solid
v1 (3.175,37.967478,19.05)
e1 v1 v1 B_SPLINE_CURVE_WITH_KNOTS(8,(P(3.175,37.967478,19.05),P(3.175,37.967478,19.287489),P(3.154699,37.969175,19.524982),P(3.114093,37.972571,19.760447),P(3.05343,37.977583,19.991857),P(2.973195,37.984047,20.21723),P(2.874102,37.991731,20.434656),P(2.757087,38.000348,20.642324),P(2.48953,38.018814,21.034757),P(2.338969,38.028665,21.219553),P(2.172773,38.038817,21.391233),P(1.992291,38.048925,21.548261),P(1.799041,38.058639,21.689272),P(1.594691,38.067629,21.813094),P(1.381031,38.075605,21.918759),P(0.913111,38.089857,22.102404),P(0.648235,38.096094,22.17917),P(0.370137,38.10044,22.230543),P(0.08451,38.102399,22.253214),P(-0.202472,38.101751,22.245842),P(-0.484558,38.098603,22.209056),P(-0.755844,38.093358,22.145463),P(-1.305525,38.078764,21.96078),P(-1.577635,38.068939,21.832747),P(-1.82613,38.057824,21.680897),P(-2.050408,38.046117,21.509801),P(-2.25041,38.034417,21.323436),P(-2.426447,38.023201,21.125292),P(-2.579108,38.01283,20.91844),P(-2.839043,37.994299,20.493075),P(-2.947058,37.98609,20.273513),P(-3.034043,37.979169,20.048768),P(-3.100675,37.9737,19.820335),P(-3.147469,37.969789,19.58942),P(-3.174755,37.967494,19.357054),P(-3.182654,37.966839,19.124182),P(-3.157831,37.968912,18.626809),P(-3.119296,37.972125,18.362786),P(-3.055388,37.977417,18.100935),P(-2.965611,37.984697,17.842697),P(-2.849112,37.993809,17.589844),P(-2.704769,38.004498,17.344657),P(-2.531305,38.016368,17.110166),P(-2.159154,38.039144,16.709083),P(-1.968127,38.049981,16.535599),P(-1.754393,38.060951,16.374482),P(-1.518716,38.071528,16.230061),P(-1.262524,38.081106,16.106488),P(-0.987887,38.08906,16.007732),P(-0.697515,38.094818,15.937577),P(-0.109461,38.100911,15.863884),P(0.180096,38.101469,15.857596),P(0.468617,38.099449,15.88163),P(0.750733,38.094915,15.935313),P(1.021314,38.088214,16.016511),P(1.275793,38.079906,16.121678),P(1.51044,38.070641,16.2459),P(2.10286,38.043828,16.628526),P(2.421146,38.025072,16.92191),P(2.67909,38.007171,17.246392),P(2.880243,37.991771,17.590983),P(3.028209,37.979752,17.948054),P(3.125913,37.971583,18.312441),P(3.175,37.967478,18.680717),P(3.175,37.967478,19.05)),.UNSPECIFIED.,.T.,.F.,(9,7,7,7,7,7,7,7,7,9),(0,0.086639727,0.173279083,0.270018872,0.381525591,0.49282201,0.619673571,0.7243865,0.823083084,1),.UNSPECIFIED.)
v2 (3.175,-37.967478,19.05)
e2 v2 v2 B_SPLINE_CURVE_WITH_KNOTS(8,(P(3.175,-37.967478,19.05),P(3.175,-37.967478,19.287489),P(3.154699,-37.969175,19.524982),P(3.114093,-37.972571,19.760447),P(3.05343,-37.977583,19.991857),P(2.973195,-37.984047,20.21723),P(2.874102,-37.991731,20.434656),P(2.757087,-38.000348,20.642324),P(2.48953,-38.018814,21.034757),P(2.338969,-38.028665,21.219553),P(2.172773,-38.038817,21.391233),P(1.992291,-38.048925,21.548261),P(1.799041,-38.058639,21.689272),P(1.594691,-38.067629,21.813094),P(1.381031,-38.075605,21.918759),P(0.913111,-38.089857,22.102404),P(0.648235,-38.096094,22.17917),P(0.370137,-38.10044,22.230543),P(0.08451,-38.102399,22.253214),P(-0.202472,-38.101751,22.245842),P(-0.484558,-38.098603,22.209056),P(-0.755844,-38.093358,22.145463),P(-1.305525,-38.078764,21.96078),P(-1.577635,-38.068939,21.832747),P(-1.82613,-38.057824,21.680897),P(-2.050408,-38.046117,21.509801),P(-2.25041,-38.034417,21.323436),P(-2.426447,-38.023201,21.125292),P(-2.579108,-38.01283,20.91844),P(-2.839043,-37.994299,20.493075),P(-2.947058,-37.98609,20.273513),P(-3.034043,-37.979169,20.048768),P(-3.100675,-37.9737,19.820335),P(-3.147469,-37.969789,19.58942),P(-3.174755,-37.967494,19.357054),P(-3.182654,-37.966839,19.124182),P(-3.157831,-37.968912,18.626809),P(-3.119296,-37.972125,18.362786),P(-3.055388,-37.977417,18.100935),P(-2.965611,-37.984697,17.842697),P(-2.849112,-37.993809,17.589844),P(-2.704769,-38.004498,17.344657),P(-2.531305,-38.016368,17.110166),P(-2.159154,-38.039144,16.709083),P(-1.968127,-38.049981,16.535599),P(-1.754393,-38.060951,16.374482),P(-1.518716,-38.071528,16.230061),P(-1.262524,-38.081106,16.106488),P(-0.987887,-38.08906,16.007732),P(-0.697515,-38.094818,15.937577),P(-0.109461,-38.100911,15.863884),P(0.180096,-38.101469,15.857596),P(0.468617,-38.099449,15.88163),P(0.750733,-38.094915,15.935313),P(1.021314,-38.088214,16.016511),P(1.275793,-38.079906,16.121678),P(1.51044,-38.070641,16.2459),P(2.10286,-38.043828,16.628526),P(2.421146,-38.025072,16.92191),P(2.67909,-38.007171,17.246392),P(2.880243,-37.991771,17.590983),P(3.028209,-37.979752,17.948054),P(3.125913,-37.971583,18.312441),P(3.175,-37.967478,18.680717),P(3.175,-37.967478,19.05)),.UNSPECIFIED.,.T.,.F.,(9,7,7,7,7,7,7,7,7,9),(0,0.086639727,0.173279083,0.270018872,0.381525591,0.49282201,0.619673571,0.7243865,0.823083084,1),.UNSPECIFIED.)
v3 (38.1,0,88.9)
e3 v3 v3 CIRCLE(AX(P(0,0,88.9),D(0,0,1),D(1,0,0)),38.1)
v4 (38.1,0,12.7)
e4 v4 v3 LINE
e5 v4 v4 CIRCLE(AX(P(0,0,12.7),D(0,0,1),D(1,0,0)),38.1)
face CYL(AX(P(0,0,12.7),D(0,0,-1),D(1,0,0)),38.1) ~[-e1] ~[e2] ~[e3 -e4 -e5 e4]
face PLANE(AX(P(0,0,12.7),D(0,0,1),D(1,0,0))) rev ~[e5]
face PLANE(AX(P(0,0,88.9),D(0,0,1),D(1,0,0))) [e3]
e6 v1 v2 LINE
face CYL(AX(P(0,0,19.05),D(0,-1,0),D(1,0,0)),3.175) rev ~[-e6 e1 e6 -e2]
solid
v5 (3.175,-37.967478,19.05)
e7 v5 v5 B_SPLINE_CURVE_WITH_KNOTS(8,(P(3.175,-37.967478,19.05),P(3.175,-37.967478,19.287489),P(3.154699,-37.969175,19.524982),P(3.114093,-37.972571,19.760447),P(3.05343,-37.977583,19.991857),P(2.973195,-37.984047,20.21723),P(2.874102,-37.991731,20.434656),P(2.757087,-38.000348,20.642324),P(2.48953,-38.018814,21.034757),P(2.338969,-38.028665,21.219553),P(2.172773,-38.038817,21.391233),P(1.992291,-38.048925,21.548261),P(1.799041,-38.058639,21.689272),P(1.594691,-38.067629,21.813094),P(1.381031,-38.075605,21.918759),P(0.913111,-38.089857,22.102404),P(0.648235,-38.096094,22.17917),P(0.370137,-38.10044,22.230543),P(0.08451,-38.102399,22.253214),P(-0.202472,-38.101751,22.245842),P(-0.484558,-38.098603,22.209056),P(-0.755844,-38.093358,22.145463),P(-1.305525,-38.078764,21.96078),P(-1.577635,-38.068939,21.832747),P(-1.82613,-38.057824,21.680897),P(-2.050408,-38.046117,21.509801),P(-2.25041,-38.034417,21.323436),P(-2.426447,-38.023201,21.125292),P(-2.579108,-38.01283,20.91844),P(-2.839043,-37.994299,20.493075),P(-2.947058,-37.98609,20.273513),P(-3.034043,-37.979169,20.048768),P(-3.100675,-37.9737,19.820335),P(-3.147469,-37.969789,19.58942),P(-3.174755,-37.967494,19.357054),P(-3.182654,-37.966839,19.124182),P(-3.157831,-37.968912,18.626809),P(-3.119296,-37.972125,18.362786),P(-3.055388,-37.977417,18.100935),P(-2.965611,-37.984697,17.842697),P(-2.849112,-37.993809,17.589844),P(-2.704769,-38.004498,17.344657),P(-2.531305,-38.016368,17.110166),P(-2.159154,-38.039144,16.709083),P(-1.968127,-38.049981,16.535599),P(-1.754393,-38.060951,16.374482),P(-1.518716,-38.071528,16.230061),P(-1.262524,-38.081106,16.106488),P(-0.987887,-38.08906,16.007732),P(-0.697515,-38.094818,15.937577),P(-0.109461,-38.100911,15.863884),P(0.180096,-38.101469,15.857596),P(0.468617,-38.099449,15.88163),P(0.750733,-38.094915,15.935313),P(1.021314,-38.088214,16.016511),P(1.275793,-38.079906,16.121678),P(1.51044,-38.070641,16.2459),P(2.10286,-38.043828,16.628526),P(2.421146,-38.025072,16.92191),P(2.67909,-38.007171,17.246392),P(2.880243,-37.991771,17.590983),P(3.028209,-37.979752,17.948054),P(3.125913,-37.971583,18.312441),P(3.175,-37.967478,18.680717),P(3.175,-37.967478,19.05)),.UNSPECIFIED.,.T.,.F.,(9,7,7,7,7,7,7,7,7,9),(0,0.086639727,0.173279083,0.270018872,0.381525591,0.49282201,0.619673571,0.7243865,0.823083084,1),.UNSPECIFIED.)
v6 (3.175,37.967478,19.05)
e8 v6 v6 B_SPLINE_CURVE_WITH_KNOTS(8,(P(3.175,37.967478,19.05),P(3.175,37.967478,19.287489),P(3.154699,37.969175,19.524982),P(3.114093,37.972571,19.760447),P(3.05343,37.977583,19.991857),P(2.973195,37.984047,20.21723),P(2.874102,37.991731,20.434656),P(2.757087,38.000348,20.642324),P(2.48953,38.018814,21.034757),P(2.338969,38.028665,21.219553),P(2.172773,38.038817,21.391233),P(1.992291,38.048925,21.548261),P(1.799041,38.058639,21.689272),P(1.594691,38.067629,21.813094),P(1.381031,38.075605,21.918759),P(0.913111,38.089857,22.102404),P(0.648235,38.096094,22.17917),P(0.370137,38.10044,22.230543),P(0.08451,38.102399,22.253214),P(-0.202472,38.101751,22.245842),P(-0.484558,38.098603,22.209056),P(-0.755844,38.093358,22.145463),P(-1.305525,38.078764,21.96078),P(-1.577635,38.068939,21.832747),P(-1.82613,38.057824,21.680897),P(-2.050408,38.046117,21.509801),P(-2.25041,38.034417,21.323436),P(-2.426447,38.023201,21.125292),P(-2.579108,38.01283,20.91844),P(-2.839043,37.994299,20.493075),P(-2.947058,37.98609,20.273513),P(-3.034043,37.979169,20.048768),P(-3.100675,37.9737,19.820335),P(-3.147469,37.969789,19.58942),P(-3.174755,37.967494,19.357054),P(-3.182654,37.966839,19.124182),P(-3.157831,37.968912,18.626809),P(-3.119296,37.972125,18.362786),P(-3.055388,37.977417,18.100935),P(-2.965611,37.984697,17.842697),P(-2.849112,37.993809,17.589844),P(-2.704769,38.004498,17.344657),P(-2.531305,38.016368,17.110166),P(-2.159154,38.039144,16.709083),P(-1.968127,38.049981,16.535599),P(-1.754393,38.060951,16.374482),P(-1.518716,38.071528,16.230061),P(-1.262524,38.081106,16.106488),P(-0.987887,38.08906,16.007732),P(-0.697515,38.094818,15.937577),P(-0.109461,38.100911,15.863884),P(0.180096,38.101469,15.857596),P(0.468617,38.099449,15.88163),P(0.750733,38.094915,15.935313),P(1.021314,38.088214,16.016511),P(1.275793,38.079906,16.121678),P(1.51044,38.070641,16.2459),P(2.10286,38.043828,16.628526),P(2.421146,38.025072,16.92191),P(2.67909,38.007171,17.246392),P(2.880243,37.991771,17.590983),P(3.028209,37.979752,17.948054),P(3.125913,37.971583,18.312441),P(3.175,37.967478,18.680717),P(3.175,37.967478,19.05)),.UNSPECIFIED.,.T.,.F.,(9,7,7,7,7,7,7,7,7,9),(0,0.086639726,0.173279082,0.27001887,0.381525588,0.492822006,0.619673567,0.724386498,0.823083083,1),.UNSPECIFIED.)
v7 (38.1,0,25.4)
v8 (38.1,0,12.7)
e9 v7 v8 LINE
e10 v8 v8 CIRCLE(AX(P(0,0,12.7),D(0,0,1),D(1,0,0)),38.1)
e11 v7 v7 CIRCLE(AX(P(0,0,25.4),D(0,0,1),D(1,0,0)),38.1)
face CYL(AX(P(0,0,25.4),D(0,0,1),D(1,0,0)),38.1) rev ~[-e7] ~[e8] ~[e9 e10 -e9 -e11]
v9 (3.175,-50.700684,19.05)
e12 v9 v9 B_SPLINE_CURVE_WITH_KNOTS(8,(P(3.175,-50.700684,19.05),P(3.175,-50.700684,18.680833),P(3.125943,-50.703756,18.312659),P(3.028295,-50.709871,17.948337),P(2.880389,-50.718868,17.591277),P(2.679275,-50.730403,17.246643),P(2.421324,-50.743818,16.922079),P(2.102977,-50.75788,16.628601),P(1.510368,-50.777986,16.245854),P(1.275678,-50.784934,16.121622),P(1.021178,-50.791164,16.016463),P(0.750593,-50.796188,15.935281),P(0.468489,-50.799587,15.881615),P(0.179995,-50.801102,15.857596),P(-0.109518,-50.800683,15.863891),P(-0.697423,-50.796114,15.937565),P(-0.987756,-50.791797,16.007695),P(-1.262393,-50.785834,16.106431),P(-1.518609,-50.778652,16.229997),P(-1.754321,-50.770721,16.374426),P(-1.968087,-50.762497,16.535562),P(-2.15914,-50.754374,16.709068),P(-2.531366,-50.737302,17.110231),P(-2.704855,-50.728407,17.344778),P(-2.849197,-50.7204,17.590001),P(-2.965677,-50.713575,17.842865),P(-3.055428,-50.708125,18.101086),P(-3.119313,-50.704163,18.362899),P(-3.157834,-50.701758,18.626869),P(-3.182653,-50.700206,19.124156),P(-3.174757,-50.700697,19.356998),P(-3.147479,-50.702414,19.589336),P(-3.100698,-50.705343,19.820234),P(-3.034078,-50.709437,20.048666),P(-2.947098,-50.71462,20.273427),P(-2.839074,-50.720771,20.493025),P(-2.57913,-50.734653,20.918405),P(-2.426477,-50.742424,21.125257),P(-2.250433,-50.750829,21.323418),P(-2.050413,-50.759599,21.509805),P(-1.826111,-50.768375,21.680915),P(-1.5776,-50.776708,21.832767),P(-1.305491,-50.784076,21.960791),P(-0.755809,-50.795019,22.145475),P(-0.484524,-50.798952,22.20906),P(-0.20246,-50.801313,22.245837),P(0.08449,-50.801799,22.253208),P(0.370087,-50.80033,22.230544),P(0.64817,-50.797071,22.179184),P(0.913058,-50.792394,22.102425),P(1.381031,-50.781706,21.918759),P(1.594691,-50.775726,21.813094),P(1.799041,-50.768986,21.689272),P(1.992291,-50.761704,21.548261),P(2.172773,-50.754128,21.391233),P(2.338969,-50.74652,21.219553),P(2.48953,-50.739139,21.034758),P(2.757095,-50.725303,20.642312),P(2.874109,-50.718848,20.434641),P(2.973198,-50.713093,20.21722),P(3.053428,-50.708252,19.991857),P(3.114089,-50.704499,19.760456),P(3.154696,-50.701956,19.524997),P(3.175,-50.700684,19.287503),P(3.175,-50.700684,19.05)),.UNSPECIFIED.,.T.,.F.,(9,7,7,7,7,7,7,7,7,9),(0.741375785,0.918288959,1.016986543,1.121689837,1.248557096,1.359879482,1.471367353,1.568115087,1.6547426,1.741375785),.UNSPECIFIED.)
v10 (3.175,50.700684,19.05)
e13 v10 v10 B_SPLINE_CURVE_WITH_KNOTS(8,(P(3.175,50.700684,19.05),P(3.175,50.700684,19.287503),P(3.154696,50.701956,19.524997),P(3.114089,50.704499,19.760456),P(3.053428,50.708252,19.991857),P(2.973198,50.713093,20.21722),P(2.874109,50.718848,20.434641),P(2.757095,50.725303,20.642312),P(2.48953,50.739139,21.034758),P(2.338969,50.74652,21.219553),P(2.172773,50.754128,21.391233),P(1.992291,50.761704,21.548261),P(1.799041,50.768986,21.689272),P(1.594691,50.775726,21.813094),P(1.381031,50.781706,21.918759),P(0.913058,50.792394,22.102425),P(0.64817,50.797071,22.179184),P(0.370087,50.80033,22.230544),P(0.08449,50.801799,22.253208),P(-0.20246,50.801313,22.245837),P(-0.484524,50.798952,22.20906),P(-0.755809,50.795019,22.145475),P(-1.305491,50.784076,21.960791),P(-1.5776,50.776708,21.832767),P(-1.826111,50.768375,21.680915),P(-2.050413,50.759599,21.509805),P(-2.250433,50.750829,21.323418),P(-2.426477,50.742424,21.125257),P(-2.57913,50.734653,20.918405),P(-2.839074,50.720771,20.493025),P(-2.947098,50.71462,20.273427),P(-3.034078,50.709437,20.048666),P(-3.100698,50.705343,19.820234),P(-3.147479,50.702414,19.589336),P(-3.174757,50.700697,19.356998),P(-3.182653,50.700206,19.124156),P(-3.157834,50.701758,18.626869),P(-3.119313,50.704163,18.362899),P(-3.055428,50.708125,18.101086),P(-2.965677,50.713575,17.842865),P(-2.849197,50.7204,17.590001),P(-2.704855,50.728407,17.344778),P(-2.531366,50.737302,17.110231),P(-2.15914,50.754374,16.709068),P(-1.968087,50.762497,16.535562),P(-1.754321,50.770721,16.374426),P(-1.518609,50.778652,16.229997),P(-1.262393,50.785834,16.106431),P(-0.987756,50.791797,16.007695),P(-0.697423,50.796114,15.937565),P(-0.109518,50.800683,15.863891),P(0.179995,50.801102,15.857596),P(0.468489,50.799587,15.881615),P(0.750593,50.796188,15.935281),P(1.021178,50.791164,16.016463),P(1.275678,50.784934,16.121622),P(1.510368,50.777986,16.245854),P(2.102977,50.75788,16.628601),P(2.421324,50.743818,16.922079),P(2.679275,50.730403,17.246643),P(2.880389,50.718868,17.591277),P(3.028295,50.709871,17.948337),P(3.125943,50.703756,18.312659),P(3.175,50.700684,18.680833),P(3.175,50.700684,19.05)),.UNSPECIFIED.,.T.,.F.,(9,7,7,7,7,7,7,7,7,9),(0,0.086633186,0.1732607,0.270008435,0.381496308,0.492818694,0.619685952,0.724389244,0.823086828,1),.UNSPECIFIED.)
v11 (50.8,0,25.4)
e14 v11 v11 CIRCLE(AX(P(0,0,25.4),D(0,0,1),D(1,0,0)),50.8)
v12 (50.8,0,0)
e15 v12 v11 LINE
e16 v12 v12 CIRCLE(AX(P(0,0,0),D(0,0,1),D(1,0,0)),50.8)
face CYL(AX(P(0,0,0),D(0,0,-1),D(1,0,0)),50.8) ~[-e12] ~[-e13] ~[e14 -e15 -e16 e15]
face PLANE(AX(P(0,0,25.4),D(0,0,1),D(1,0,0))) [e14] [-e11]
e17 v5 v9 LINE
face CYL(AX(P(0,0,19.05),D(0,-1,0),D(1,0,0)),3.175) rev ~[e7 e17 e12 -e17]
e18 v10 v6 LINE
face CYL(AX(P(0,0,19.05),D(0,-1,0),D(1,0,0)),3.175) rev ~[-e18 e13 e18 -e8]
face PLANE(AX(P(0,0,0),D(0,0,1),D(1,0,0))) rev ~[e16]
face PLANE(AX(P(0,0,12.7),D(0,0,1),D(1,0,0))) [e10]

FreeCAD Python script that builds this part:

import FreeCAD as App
import Part
import Sketcher

V = App.Vector
Q = App.Units.Quantity

doc = App.newDocument("Part")
body = doc.addObject("PartDesign::Body", "Body")

# Sketch on XY plane
sketch1 = doc.addObject("Sketcher::SketchObject", "Sketch")
body.addObject(sketch1)
sketch1.AttachmentSupport = (doc.XY_Plane, [""])
sketch1.MapMode = "FlatFace"
sketch1.addGeometry(Part.Circle(V(0, 0, 0), V(0, 0, 1), 50.8), False)
sketch1.addConstraint(Sketcher.Constraint("Coincident", 0, 3, -1, 1))
sketch1.addConstraint(Sketcher.Constraint("Diameter", 0, Q("4 in")))
pad1 = doc.addObject("PartDesign::Pad", "Pad")
body.addObject(pad1)
pad1.Profile = sketch1
pad1.Length = Q("1 in")

# Sketch on XY plane
sketch2 = doc.addObject("Sketcher::SketchObject", "Sketch001")
body.addObject(sketch2)
sketch2.AttachmentSupport = (doc.XY_Plane, [""])
sketch2.MapMode = "FlatFace"
sketch2.AttachmentOffset = App.Placement(V(0, 0, 1 * 25.4), App.Rotation())
sketch2.addGeometry(Part.Circle(V(0, 0, 0), V(0, 0, 1), 38.1), False)
sketch2.addConstraint(Sketcher.Constraint("Coincident", 0, 3, -1, 1))
sketch2.addConstraint(Sketcher.Constraint("Diameter", 0, Q("3 in")))
pocket1 = doc.addObject("PartDesign::Pocket", "Pocket")
body.addObject(pocket1)
pocket1.Profile = sketch2
pocket1.Length = Q("0.5 in")
body2 = doc.addObject("PartDesign::Body", "Body001")

# Sketch on XY plane
sketch3 = doc.addObject("Sketcher::SketchObject", "Sketch002")
body2.addObject(sketch3)
sketch3.AttachmentSupport = (doc.getObject("XY_Plane001"), [""])
sketch3.MapMode = "FlatFace"
sketch3.AttachmentOffset = App.Placement(V(0, 0, 0.5 * 25.4), App.Rotation())
sketch3.addGeometry(Part.Circle(V(0, 0, 0), V(0, 0, 1), 38.1), False)
sketch3.addConstraint(Sketcher.Constraint("Coincident", 0, 3, -1, 1))
sketch3.addConstraint(Sketcher.Constraint("Diameter", 0, Q("3 in")))
pad2 = doc.addObject("PartDesign::Pad", "Pad001")
body2.addObject(pad2)
pad2.Profile = sketch3
pad2.Length = Q("3 in")
body3 = doc.addObject("PartDesign::Body", "Body002")

# Sketch on XZ plane
sketch4 = doc.addObject("Sketcher::SketchObject", "Sketch003")
body3.addObject(sketch4)
sketch4.AttachmentSupport = (doc.getObject("XZ_Plane002"), [""])
sketch4.MapMode = "FlatFace"
sketch4.addGeometry(Part.Circle(V(0, 19.05, 0), V(0, 0, 1), 3.175), False)
sketch4.addConstraint(Sketcher.Constraint("PointOnObject", 0, 3, -2))
sketch4.addConstraint(Sketcher.Constraint("Diameter", 0, Q("0.25 in")))
sketch4.addConstraint(Sketcher.Constraint("DistanceY", -1, 1, 0, 3, Q("0.75 in")))
pad3 = doc.addObject("PartDesign::Pad", "Pad002")
body3.addObject(pad3)
pad3.Profile = sketch4
pad3.Length = Q("4 in")
pad3.Midplane = True
doc.recompute()

body4 = doc.addObject("PartDesign::Body", "Body003")
body4.BaseFeature = body3
boolean = doc.addObject("PartDesign::Boolean", "Boolean")
body.addObject(boolean)
boolean.Type = "Cut"
boolean.addObjects([body4])
doc.recompute()

boolean2 = doc.addObject("PartDesign::Boolean", "Boolean001")
body2.addObject(boolean2)
boolean2.Type = "Cut"
boolean2.addObjects([body3])

doc.recompute()
